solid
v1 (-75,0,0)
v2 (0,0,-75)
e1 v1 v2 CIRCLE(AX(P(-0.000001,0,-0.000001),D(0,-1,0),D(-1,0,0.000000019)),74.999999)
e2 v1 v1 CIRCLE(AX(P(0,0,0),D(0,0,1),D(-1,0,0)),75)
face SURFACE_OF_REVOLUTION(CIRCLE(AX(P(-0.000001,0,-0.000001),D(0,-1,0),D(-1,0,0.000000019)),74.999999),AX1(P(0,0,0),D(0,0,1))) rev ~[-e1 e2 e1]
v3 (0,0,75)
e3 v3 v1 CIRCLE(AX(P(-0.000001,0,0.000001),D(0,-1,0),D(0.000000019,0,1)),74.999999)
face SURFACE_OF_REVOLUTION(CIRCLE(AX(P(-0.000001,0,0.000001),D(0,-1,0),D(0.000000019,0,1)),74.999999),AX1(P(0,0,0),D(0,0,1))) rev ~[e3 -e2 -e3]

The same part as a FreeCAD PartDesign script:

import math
import FreeCAD as App
import Part
import Sketcher
from FreeCAD import Vector

doc = App.newDocument("Part")
body = doc.addObject("PartDesign::Body", "Body")

sketch1 = body.newObject("Sketcher::SketchObject", "Sketch")
sketch1.AttachmentSupport = (doc.getObject("XZ_Plane"), [""])
sketch1.MapMode = "FlatFace"
sketch1.addGeometry([
    Part.ArcOfCircle(Part.Circle(Vector(0, 0, 0), Vector(0, 0, 1), 75), math.radians(180), math.radians(270)),
    Part.LineSegment(Vector(0, -75, 0), Vector(0, 75, 0)),
    Part.ArcOfCircle(Part.Circle(Vector(0, 0, 0), Vector(0, 0, 1), 75), math.radians(90), math.radians(180)),
], False)
sketch1.addConstraint([
    Sketcher.Constraint("Coincident", 0, 2, 1, 1),
    Sketcher.Constraint("Coincident", 1, 2, 2, 1),
    Sketcher.Constraint("Tangent", 2, 2, 0, 1),
    Sketcher.Constraint("Vertical", 1),
    Sketcher.Constraint("Coincident", 0, 3, -1, 1),
    Sketcher.Constraint("Equal", 0, 2),
    Sketcher.Constraint("PointOnObject", 0, 2, -2),
    Sketcher.Constraint("PointOnObject", 2, 2, -1),
    Sketcher.Constraint("Radius", 0, 74.999999),
])
revolution = body.newObject("PartDesign::Revolution", "Revolution")
revolution.Profile = sketch1
revolution.ReferenceAxis = (sketch1, ["V_Axis"])
revolution.Angle = 360

doc.recompute()
